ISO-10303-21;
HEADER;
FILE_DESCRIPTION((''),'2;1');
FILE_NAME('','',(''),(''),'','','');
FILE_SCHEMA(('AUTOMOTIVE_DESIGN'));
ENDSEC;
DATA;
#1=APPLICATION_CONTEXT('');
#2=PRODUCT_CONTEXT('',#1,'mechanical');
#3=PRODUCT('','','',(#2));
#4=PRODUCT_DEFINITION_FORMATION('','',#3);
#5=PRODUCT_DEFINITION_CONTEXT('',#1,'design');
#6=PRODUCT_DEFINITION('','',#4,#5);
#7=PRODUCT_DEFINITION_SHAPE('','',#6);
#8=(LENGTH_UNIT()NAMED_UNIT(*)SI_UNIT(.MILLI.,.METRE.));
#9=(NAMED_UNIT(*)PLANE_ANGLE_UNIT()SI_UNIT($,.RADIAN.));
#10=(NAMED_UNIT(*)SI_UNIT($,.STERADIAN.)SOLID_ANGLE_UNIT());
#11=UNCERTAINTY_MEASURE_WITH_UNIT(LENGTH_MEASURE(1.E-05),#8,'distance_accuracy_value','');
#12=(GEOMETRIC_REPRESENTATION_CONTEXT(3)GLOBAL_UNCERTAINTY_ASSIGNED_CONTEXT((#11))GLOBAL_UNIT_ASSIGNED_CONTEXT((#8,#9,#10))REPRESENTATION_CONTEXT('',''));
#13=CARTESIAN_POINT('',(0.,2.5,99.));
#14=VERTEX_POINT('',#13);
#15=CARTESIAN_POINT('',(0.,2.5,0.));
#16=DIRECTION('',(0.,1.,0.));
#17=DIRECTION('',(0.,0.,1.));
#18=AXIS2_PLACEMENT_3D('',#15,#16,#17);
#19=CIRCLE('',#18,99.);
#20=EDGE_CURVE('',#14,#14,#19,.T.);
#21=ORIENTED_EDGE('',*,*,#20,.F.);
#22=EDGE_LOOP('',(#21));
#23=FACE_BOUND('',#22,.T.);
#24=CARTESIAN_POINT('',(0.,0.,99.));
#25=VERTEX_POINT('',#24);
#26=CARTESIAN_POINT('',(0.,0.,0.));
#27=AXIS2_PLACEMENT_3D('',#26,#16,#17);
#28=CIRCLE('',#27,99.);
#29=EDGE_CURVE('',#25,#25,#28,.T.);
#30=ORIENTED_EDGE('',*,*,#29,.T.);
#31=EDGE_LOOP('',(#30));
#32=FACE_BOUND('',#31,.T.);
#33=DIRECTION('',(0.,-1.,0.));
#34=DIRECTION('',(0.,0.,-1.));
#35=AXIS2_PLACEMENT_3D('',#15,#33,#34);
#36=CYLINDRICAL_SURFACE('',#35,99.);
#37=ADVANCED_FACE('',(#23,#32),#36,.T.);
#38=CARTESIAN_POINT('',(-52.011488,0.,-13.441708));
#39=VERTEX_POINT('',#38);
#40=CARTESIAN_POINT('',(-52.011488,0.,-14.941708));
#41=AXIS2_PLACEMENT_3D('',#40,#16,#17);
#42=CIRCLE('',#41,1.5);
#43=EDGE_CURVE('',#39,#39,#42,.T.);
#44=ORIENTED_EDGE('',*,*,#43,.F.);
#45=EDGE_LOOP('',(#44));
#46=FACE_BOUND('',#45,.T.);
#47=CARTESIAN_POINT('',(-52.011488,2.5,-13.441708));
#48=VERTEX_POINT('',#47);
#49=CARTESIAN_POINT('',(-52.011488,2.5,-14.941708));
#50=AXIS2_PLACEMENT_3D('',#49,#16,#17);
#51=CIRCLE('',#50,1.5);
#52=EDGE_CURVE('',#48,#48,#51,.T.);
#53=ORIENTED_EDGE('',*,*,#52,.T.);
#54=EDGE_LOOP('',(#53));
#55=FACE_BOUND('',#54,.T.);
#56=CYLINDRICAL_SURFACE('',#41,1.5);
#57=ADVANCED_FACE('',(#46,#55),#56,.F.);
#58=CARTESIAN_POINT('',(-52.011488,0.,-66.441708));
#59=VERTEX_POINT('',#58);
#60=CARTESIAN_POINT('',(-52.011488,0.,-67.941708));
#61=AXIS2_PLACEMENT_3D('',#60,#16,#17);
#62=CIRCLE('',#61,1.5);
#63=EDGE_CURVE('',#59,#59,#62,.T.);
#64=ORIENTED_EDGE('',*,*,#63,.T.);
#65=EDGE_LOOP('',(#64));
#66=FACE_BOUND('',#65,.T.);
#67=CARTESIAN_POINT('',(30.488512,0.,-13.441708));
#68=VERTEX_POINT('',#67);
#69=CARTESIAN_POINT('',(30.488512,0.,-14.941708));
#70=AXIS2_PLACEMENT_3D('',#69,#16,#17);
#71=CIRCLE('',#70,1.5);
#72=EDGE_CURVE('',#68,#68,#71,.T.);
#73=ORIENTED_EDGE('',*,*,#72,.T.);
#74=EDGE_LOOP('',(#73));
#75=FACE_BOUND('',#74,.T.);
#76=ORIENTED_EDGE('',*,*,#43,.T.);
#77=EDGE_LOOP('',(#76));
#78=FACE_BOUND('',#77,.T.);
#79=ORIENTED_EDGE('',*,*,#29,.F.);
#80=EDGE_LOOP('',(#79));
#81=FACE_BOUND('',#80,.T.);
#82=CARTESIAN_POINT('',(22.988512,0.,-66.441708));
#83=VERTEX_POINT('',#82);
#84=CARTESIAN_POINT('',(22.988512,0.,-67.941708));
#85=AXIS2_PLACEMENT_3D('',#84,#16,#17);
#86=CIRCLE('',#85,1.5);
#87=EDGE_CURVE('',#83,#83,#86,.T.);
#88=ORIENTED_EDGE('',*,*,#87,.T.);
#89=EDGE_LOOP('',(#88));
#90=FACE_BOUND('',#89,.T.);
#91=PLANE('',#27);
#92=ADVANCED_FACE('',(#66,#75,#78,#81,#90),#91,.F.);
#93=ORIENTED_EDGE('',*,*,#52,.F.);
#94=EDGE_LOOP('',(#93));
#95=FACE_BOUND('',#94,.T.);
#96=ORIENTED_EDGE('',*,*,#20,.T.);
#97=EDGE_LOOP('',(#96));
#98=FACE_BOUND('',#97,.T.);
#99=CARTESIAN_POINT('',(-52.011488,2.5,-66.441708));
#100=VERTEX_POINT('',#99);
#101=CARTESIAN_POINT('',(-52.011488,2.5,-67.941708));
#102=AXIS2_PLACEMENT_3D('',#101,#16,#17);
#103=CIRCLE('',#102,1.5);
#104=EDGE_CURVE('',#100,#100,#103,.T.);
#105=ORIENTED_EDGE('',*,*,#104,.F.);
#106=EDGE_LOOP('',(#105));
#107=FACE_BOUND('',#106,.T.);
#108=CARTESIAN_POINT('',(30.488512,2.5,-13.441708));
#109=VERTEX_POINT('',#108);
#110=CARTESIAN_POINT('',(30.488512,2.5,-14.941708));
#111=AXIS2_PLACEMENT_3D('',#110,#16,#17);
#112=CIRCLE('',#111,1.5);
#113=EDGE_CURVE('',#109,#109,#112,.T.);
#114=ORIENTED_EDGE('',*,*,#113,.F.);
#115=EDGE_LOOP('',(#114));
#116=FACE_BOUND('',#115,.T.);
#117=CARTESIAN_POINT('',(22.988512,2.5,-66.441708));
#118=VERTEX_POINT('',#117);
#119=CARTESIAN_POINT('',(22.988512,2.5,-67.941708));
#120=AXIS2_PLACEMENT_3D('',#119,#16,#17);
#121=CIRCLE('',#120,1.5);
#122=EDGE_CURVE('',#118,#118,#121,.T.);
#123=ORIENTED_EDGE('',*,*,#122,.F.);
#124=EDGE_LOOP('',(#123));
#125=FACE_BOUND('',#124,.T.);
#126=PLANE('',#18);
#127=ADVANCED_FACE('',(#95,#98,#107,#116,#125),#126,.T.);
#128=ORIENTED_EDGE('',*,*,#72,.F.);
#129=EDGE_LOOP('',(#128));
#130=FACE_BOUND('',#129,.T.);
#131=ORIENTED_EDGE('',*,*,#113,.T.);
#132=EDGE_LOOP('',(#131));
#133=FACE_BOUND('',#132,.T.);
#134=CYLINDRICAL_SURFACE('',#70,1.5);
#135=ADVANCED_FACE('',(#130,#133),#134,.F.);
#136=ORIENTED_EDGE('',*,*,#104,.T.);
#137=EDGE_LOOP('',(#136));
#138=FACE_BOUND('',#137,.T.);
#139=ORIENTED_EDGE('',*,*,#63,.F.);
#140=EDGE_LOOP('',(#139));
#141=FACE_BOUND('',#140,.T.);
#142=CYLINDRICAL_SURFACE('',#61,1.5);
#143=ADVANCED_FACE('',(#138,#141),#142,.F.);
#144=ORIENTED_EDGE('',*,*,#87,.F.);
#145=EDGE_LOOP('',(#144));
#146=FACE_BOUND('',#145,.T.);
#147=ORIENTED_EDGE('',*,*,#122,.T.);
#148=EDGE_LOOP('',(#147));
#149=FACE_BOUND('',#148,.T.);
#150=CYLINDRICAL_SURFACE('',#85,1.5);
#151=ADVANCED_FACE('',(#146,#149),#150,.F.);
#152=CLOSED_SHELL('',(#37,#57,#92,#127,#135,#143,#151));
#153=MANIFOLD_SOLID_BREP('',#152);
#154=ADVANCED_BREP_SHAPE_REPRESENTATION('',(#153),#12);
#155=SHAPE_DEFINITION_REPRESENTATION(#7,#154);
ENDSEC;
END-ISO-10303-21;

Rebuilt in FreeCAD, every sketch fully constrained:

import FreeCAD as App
import Part
import Sketcher
from FreeCAD import Vector

doc = App.newDocument("Part")
body = doc.addObject("PartDesign::Body", "Body")

# Sketch on XZ plane
sketch1 = body.newObject("Sketcher::SketchObject", "Sketch")
sketch1.AttachmentSupport = (doc.getObject("XZ_Plane"), [""])
sketch1.MapMode = "FlatFace"
sketch1.addGeometry(Part.Circle(Vector(0, 0, 0), Vector(0, 0, 1), 99), False)
sketch1.addConstraint([
    Sketcher.Constraint("Coincident", 0, 3, -1, 1),
    Sketcher.Constraint("Diameter", 0, 198.0),
])
pad1 = body.newObject("PartDesign::Pad", "Pad")
pad1.Profile = sketch1
pad1.Length = 2.5
pad1.Reversed = True

# Sketch on XZ plane
sketch2 = body.newObject("Sketcher::SketchObject", "Sketch001")
sketch2.AttachmentSupport = (doc.getObject("XZ_Plane"), [""])
sketch2.MapMode = "FlatFace"
sketch2.AttachmentOffset = App.Placement(Vector(0, 0, -2.5), App.Rotation())
sketch2.addGeometry(Part.Circle(Vector(0, 0, 0), Vector(0, 0, 1), 96), False)
sketch2.addConstraint([
    Sketcher.Constraint("Coincident", 0, 3, -1, 1),
    Sketcher.Constraint("Diameter", 0, 193.0),
])
pocket1 = body.newObject("PartDesign::Pocket", "Pocket")
pocket1.Profile = sketch2
pocket1.Length = 2.5
pocket1.Reversed = True

# Sketch on XZ plane
sketch3 = body.newObject("Sketcher::SketchObject", "Sketch002")
sketch3.AttachmentSupport = (doc.getObject("XZ_Plane"), [""])
sketch3.MapMode = "FlatFace"
sketch3.AttachmentOffset = App.Placement(Vector(0, 0, -2.5), App.Rotation())
sketch3.addGeometry([
    Part.Circle(Vector(0, 0, 0), Vector(0, 0, 1), 96.5),  # 0
    Part.Circle(Vector(-52, -14.9, 0), Vector(0, 0, 1), 1.5),  # 1
    Part.Circle(Vector(30.5, -14.9, 0), Vector(0, 0, 1), 1.5),  # 2
    Part.Circle(Vector(-52, -67.9, 0), Vector(0, 0, 1), 1.5),  # 3
    Part.Circle(Vector(23, -67.9, 0), Vector(0, 0, 1), 1.5),  # 4
], False)
sketch3.addConstraint([
    Sketcher.Constraint("Coincident", 0, 3, -1, 1),
    Sketcher.Constraint("Equal", 1, 2),
    Sketcher.Constraint("Equal", 2, 3),
    Sketcher.Constraint("Equal", 3, 4),
    Sketcher.Constraint("Horizontal", 1, 3, 2, 3),
    Sketcher.Constraint("Horizontal", 3, 3, 4, 3),
    Sketcher.Constraint("Vertical", 1, 3, 3, 3),
    Sketcher.Constraint("Diameter", 0, 193.0),
    Sketcher.Constraint("Diameter", 1, 3.0),
    Sketcher.Constraint("DistanceY", 3, 3, 1, 3, 53.0),
    Sketcher.Constraint("DistanceX", 3, 3, 4, 3, 75.0),
    Sketcher.Constraint("DistanceX", 1, 3, 2, 3, 82.5),
    Sketcher.Constraint("DistanceX", 1, 3, -1, 1, 52.011488),
    Sketcher.Constraint("DistanceY", 1, 3, -1, 1, 14.941708),
])
pad2 = body.newObject("PartDesign::Pad", "Pad001")
pad2.Profile = sketch3
pad2.Length = 2.5

doc.recompute()
